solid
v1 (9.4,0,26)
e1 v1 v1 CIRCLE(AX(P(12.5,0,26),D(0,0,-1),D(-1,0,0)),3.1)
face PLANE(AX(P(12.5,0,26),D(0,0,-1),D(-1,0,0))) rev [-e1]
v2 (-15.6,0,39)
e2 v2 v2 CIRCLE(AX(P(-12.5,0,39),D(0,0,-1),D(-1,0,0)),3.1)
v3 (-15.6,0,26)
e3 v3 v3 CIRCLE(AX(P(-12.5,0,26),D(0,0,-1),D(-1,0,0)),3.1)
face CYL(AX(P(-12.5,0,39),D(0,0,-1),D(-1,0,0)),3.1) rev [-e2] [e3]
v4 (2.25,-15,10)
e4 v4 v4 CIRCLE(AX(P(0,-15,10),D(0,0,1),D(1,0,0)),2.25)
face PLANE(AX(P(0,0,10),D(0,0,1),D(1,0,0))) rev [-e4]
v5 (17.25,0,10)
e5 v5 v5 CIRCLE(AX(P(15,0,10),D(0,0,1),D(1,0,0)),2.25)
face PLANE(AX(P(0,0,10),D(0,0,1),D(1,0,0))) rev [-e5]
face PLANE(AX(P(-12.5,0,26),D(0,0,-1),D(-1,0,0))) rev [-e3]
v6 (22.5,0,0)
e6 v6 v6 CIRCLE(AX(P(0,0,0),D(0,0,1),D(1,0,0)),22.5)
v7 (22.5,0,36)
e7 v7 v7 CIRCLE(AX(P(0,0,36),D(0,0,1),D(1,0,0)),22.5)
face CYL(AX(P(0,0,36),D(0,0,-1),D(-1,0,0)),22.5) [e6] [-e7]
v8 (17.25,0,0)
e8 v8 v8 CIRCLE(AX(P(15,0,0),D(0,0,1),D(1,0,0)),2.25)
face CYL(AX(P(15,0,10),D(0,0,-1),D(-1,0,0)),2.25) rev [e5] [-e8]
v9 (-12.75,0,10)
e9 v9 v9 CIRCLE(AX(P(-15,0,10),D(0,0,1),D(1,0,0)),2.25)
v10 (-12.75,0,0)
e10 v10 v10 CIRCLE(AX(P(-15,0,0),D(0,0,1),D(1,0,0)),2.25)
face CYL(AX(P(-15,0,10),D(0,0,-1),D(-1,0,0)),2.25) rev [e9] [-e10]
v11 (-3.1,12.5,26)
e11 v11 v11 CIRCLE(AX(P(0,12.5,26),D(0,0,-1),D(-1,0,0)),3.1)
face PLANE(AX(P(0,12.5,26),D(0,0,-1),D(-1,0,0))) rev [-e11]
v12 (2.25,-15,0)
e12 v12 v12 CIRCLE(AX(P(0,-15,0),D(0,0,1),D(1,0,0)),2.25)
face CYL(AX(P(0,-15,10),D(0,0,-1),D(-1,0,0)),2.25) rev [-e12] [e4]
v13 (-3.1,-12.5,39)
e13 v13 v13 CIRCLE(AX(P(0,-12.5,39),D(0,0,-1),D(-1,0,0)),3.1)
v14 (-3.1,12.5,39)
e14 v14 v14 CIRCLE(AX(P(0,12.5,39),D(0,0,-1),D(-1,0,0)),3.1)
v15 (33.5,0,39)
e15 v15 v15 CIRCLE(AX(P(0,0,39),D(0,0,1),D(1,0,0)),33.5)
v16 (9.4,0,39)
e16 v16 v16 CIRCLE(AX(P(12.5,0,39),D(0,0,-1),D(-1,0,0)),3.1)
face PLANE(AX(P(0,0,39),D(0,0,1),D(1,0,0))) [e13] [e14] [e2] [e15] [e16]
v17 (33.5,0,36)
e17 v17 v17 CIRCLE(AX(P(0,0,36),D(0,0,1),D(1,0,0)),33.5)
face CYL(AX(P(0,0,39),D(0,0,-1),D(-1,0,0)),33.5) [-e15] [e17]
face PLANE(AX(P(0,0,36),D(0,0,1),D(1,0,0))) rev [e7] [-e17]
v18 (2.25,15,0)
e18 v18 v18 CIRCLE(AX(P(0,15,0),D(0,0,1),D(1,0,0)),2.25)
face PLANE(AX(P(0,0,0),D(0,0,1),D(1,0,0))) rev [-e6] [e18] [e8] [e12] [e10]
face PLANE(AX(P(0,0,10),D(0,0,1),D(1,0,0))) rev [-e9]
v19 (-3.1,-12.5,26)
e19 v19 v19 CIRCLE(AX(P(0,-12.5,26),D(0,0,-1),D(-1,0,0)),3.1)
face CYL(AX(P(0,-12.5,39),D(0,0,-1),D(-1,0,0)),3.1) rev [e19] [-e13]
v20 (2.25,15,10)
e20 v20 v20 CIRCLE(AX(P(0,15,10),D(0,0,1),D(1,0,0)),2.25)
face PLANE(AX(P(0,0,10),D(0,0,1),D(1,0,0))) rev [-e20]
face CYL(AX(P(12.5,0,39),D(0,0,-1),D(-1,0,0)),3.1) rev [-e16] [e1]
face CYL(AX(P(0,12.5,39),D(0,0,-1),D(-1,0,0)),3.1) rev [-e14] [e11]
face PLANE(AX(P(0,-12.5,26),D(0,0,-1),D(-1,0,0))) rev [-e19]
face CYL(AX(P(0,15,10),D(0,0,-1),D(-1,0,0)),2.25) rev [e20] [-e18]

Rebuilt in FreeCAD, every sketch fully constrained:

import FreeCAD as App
import Part
import Sketcher

V = App.Vector
Q = App.Units.Quantity

doc = App.newDocument("Part")
body = doc.addObject("PartDesign::Body", "Body")

# Sketch on XY plane
sketch1 = body.newObject("Sketcher::SketchObject", "Sketch")
sketch1.AttachmentSupport = (doc.getObject("XY_Plane"), [""])
sketch1.MapMode = "FlatFace"
sketch1.addGeometry(Part.Circle(V(0, 0, 0), V(0, 0, 1), 22), False)
sketch1.addConstraint(Sketcher.Constraint("Coincident", 0, 3, -1, 1))
sketch1.addConstraint(Sketcher.Constraint("Diameter", 0, Q("45 mm")))
pad1 = body.newObject("PartDesign::Pad", "Pad")
pad1.Profile = sketch1
pad1.Length = 36

# Sketch on XY plane
sketch2 = body.newObject("Sketcher::SketchObject", "Sketch001")
sketch2.AttachmentSupport = (doc.getObject("XY_Plane"), [""])
sketch2.MapMode = "FlatFace"
sketch2.addGeometry(Part.Circle(V(0, 15, 0), V(0, 0, 1), 2.2), False)
sketch2.addGeometry(Part.Circle(V(15, 0, 0), V(0, 0, 1), 2.2), False)
sketch2.addGeometry(Part.Circle(V(0, -15, 0), V(0, 0, 1), 2.2), False)
sketch2.addGeometry(Part.Circle(V(-15, 0, 0), V(0, 0, 1), 2.2), False)
sketch2.addConstraint(Sketcher.Constraint("Equal", 0, 1))
sketch2.addConstraint(Sketcher.Constraint("Equal", 1, 2))
sketch2.addConstraint(Sketcher.Constraint("Equal", 2, 3))
sketch2.addConstraint(Sketcher.Constraint("Symmetric", 0, 3, 2, 3, -1, 1))
sketch2.addConstraint(Sketcher.Constraint("Symmetric", 1, 3, 3, 3, -1, 1))
sketch2.addConstraint(Sketcher.Constraint("PointOnObject", 0, 3, -2))
sketch2.addConstraint(Sketcher.Constraint("PointOnObject", 1, 3, -1))
sketch2.addConstraint(Sketcher.Constraint("Diameter", 0, Q("4.5 mm")))
sketch2.addConstraint(Sketcher.Constraint("DistanceY", -1, 1, 0, 3, Q("15 mm")))
sketch2.addConstraint(Sketcher.Constraint("DistanceX", -1, 1, 1, 3, Q("15 mm")))
pocket1 = body.newObject("PartDesign::Pocket", "Pocket")
pocket1.Profile = sketch2
pocket1.Length = 10
pocket1.Reversed = True

# Sketch on XY plane
sketch3 = body.newObject("Sketcher::SketchObject", "Sketch002")
sketch3.AttachmentSupport = (doc.getObject("XY_Plane"), [""])
sketch3.MapMode = "FlatFace"
sketch3.AttachmentOffset = App.Placement(V(0, 0, 36), App.Rotation())
sketch3.addGeometry(Part.Circle(V(0, 0, 0), V(0, 0, 1), 34), False)
sketch3.addConstraint(Sketcher.Constraint("Coincident", 0, 3, -1, 1))
sketch3.addConstraint(Sketcher.Constraint("Diameter", 0, Q("67 mm")))
pad2 = body.newObject("PartDesign::Pad", "Pad001")
pad2.Profile = sketch3
pad2.Length = 3

# Sketch on XY plane
sketch4 = body.newObject("Sketcher::SketchObject", "Sketch003")
sketch4.AttachmentSupport = (doc.getObject("XY_Plane"), [""])
sketch4.MapMode = "FlatFace"
sketch4.AttachmentOffset = App.Placement(V(0, 0, 36), App.Rotation())
sketch4.addGeometry(Part.Circle(V(0, 12.5, 0), V(0, 0, 1), 3.1), False)
sketch4.addGeometry(Part.Circle(V(-12.5, 0, 0), V(0, 0, 1), 3.1), False)
sketch4.addGeometry(Part.Circle(V(0, -12.5, 0), V(0, 0, 1), 3.1), False)
sketch4.addGeometry(Part.Circle(V(12.5, 0, 0), V(0, 0, 1), 3.1), False)
sketch4.addConstraint(Sketcher.Constraint("Equal", 0, 1))
sketch4.addConstraint(Sketcher.Constraint("Equal", 1, 2))
sketch4.addConstraint(Sketcher.Constraint("Equal", 2, 3))
sketch4.addConstraint(Sketcher.Constraint("Symmetric", 0, 3, 2, 3, -1, 1))
sketch4.addConstraint(Sketcher.Constraint("Symmetric", 1, 3, 3, 3, -1, 1))
sketch4.addConstraint(Sketcher.Constraint("PointOnObject", 0, 3, -2))
sketch4.addConstraint(Sketcher.Constraint("PointOnObject", 1, 3, -1))
sketch4.addConstraint(Sketcher.Constraint("Diameter", 0, Q("6.2 mm")))
sketch4.addConstraint(Sketcher.Constraint("DistanceY", 2, 3, 0, 3, Q("25 mm")))
sketch4.addConstraint(Sketcher.Constraint("DistanceX", 1, 3, 3, 3, Q("25 mm")))
pocket2 = body.newObject("PartDesign::Pocket", "Pocket001")
pocket2.Profile = sketch4
pocket2.Type = "TwoLengths"
pocket2.Length = 10
pocket2.Length2 = 3

doc.recompute()
